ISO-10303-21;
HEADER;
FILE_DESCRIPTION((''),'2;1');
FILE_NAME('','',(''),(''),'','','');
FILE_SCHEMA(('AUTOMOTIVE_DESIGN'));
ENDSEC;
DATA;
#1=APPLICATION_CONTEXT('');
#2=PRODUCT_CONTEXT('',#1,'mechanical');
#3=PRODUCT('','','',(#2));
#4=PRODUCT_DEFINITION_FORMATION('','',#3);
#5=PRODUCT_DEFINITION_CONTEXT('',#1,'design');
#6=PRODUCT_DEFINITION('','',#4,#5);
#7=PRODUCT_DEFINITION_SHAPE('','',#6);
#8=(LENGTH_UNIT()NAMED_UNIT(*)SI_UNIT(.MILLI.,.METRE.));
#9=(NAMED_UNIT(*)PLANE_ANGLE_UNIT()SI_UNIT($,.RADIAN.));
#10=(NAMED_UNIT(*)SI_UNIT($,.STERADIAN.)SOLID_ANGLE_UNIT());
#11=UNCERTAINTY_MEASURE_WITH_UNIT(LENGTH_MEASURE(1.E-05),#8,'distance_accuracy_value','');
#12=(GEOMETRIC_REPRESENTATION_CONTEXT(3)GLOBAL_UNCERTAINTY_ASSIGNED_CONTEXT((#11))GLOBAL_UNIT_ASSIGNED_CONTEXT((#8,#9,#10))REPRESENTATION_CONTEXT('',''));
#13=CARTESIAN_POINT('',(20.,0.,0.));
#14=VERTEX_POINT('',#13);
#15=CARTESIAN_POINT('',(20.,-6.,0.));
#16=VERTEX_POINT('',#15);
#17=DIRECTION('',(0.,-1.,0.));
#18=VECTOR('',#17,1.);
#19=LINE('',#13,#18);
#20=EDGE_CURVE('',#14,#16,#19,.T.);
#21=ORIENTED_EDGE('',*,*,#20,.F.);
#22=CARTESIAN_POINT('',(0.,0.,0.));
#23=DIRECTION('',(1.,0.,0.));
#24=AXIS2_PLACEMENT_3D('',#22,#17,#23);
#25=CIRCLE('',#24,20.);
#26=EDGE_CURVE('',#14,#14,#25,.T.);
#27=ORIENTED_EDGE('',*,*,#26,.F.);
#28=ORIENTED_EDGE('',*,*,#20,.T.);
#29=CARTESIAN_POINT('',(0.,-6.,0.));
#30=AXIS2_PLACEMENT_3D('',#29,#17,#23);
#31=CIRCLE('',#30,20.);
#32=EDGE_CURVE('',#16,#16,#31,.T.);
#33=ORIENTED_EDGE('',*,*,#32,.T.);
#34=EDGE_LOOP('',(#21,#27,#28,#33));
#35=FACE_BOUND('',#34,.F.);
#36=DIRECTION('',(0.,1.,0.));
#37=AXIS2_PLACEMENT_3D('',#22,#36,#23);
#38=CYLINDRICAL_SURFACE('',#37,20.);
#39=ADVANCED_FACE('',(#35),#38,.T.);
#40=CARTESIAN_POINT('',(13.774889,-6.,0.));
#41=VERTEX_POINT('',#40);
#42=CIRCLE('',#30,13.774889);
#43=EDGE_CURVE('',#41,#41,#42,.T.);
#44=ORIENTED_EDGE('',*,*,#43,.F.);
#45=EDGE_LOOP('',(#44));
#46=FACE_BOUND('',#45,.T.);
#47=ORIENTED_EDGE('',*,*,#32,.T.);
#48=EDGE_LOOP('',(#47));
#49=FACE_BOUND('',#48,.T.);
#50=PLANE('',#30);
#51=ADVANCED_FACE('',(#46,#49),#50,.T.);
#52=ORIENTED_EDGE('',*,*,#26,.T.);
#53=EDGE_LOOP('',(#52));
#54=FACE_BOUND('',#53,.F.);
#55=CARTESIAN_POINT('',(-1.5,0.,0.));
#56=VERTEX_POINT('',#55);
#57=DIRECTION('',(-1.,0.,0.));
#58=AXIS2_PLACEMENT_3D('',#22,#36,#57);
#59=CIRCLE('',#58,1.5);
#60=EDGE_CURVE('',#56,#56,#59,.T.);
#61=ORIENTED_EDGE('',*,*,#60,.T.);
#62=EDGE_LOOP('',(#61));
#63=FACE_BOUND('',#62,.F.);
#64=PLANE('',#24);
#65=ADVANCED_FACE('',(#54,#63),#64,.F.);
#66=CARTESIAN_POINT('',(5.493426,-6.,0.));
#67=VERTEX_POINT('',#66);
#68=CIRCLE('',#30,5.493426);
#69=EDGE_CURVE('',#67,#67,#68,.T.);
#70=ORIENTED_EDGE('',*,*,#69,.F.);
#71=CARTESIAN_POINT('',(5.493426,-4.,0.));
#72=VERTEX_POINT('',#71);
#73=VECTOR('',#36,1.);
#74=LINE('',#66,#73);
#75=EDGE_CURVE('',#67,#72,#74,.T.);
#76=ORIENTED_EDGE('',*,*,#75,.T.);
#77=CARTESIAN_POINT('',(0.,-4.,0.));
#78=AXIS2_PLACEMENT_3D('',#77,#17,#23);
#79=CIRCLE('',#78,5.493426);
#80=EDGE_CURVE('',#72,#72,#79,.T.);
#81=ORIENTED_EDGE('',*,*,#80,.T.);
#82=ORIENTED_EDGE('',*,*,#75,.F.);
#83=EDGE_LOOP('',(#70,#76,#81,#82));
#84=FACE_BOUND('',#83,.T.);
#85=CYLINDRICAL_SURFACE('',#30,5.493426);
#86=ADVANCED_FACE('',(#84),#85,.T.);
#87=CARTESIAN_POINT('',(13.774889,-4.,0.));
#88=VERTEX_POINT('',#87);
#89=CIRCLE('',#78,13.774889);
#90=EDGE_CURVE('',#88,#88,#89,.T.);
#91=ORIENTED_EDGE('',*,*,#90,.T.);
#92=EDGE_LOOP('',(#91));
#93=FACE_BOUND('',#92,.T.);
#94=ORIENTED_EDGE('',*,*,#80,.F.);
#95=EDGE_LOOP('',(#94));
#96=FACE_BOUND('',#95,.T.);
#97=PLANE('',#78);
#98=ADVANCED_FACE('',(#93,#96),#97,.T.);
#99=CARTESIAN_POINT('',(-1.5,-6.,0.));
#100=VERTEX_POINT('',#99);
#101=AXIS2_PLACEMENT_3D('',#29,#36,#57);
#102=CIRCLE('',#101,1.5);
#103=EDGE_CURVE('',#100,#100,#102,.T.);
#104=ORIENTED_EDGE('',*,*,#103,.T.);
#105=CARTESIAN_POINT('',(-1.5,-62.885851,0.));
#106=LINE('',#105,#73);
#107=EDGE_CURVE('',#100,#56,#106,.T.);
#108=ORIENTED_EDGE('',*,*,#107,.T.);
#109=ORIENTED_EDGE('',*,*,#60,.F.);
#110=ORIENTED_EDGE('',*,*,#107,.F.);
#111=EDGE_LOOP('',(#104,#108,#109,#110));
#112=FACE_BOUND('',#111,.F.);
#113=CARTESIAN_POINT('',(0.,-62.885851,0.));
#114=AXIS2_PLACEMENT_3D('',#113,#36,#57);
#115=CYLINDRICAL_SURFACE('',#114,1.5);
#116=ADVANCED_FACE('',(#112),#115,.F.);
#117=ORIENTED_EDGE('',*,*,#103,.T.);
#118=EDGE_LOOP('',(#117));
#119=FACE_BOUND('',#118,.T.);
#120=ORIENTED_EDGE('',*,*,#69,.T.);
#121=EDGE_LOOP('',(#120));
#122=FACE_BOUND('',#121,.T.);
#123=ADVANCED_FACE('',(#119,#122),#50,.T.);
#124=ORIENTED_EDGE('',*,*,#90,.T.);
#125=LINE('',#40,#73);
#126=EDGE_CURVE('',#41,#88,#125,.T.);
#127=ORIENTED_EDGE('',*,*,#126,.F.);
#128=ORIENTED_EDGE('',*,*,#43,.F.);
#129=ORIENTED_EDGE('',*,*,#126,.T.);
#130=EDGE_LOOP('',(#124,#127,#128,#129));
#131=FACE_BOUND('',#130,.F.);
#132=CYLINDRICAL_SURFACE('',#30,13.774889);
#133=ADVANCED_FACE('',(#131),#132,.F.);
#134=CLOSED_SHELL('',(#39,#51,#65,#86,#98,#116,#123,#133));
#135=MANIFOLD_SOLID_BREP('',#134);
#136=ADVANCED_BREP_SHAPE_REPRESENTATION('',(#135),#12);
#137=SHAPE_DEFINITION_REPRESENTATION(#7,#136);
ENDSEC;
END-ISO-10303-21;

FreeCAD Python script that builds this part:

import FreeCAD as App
import Part
import Sketcher

V = App.Vector

doc = App.newDocument("Part")
body = doc.addObject("PartDesign::Body", "Body")

# Sketch on XZ plane
sketch1 = doc.addObject("Sketcher::SketchObject", "Sketch")
body.addObject(sketch1)
sketch1.AttachmentSupport = (doc.XZ_Plane, [""])
sketch1.MapMode = "FlatFace"
sketch1.addGeometry(Part.Circle(V(0, 0, 0), V(0, 0, 1), 20), False)
sketch1.addConstraint([
    Sketcher.Constraint("Coincident", 0, 3, -1, 1),
    Sketcher.Constraint("Diameter", 0, 40.0),
])
pad1 = doc.addObject("PartDesign::Pad", "Pad")
body.addObject(pad1)
pad1.Profile = sketch1
pad1.Length = 6

# Sketch on XZ plane
sketch2 = doc.addObject("Sketcher::SketchObject", "Sketch001")
body.addObject(sketch2)
sketch2.AttachmentSupport = (doc.XZ_Plane, [""])
sketch2.MapMode = "FlatFace"
sketch2.AttachmentOffset = App.Placement(V(0, 0, 6), App.Rotation())
sketch2.addGeometry([
    Part.Circle(V(0, 0, 0), V(0, 0, 1), 14),
    Part.Circle(V(0, 0, 0), V(0, 0, 1), 5),
], False)
sketch2.addConstraint([
    Sketcher.Constraint("Coincident", 0, 3, -1, 1),
    Sketcher.Constraint("Coincident", 1, 3, -1, 1),
    Sketcher.Constraint("Diameter", 0, 27.549778),
    Sketcher.Constraint("Diameter", 1, 10.986852),
])
pocket1 = doc.addObject("PartDesign::Pocket", "Pocket")
body.addObject(pocket1)
pocket1.Profile = sketch2
pocket1.Length = 2

# Sketch on XZ plane
sketch3 = doc.addObject("Sketcher::SketchObject", "Sketch002")
body.addObject(sketch3)
sketch3.AttachmentSupport = (doc.XZ_Plane, [""])
sketch3.MapMode = "FlatFace"
sketch3.AttachmentOffset = App.Placement(V(0, 0, 6), App.Rotation())
sketch3.addGeometry(Part.Circle(V(0, 0, 0), V(0, 0, 1), 1.5), False)
sketch3.addConstraint([
    Sketcher.Constraint("Coincident", 0, 3, -1, 1),
    Sketcher.Constraint("Diameter", 0, 3.0),
])
doc.recompute()
hole = doc.addObject("PartDesign::Hole", "Hole")
body.addObject(hole)
hole.Profile = sketch3
hole.ThreadType = "None"
hole.Diameter = 3
hole.DepthType = "ThroughAll"

doc.recompute()
